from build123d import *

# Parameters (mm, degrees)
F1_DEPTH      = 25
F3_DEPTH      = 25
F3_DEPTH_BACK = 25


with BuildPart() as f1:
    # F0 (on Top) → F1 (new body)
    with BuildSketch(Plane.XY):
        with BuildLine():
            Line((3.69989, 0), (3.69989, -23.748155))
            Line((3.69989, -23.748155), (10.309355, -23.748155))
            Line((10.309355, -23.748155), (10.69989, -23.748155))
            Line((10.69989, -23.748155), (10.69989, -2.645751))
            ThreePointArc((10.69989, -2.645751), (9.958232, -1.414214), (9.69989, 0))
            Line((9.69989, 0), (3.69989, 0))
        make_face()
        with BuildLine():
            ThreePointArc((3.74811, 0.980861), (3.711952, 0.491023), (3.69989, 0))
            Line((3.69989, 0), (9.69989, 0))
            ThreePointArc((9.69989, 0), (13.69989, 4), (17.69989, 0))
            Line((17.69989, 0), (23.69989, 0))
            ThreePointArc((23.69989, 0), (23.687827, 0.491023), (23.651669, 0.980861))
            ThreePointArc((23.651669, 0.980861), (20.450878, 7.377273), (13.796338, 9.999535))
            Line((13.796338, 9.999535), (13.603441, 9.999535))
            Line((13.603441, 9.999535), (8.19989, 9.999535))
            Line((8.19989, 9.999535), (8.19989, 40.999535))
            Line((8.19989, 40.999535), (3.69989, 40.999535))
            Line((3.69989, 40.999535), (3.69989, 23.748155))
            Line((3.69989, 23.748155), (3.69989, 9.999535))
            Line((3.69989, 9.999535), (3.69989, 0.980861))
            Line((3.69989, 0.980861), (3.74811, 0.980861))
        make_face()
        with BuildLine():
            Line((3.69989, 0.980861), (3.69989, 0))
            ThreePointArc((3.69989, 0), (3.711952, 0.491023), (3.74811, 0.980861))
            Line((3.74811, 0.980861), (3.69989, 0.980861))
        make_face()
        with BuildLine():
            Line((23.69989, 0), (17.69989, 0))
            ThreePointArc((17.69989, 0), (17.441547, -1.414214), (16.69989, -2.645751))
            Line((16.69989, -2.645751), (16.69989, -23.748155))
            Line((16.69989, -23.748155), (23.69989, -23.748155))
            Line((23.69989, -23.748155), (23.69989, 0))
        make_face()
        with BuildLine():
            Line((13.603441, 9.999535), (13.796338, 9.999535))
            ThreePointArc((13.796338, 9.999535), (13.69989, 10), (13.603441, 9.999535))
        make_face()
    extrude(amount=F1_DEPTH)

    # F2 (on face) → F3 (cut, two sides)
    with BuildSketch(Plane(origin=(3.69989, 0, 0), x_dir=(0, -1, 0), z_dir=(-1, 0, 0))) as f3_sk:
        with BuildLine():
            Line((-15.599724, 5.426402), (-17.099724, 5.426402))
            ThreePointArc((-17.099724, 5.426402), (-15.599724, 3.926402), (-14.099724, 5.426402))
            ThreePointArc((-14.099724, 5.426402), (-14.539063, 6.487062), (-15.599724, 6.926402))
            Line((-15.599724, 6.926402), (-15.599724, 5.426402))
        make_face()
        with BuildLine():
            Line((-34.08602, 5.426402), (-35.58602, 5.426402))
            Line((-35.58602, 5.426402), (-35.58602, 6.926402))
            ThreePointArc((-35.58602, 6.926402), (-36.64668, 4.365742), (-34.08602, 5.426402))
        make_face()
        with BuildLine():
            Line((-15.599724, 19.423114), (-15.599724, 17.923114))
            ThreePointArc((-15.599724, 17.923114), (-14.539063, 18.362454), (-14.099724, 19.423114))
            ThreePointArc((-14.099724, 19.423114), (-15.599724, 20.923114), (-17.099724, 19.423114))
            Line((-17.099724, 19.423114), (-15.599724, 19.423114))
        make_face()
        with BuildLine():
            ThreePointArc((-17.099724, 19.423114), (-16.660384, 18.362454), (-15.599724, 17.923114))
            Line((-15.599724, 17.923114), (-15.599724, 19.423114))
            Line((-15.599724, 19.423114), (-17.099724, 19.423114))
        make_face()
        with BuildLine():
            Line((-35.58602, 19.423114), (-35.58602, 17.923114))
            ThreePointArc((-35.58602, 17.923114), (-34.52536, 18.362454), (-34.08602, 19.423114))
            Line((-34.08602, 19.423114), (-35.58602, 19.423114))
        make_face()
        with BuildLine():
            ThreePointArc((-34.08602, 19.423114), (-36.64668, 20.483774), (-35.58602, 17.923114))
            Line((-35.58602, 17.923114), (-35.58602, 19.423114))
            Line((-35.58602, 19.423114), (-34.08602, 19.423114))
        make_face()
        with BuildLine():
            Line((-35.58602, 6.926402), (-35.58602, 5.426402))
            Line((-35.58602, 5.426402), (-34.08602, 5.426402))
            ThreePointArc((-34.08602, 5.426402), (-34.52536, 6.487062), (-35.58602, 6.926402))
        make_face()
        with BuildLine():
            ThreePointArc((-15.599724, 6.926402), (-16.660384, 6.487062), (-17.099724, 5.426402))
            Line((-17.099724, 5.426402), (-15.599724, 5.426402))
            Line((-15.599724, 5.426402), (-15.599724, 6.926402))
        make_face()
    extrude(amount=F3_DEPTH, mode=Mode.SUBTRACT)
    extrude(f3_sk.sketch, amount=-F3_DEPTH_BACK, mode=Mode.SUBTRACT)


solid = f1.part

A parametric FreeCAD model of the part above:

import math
import FreeCAD as App
import Part
import Sketcher
Q = App.Units.Quantity

doc = App.newDocument("Part")
params = doc.addObject("Spreadsheet::Sheet", "Params")
for row, (alias, value) in enumerate([
    ("sketch1_radius", "4 mm"),
    ("sketch1_radius2", "10 mm"),
    ("sketch1_width", "7 mm"),
    ("sketch1_width2", "7 mm"),
    ("sketch1_height", "31 mm"),
    ("pad1_length", "25 mm"),
    ("sketch2_radius", "1.5 mm"),
], start=1):
    params.set(f"A{row}", alias)
    params.set(f"B{row}", "=" + value)
    params.setAlias(f"B{row}", alias)

body = doc.addObject("PartDesign::Body", "Body")

# Sketch on XY plane
sketch1 = body.newObject("Sketcher::SketchObject", "Sketch")
sketch1.AttachmentSupport = (doc.getObject("XY_Plane"), [""])
sketch1.MapMode = "FlatFace"
sketch1.addGeometry([
    Part.LineSegment(App.Vector(3.69989, -23.748155, 0), App.Vector(10.69989, -23.748155, 0)),  # 0
    Part.LineSegment(App.Vector(10.69989, -23.748155, 0), App.Vector(10.69989, -2.645751, 0)),  # 1
    Part.ArcOfCircle(Part.Circle(App.Vector(13.699878, -0.000004, 0), App.Vector(0, 0, 1), 3.999988), math.radians(179.999939), math.radians(221.409688)),  # 2
    Part.ArcOfCircle(Part.Circle(App.Vector(13.69989, 0, 0), App.Vector(0, 0, 1), 4), math.radians(0), math.radians(180)),  # 3
    Part.ArcOfCircle(Part.Circle(App.Vector(13.699889, 0.000001, 0), App.Vector(0, 0, 1), 4.000001), math.radians(-41.409615), math.radians(-0.000012)),  # 4
    Part.LineSegment(App.Vector(16.69989, -2.645751, 0), App.Vector(16.69989, -23.748155, 0)),  # 5
    Part.LineSegment(App.Vector(16.69989, -23.748155, 0), App.Vector(23.69989, -23.748155, 0)),  # 6
    Part.LineSegment(App.Vector(23.69989, -23.748155, 0), App.Vector(23.69989, 0, 0)),  # 7
    Part.ArcOfCircle(Part.Circle(App.Vector(13.699572, -0.000019, 0), App.Vector(0, 0, 1), 10.000318), math.radians(0.000108), math.radians(5.6289)),  # 8
    Part.ArcOfCircle(Part.Circle(App.Vector(13.699889, 0, 0), App.Vector(0, 0, 1), 10), math.radians(5.628971), math.radians(89.447382)),  # 9
    Part.ArcOfCircle(Part.Circle(App.Vector(13.699889, -0.00272, 0), App.Vector(0, 0, 1), 10.00272), math.radians(89.447532), math.radians(90.552468)),  # 10
    Part.LineSegment(App.Vector(13.603441, 9.999535, 0), App.Vector(8.19989, 9.999535, 0)),  # 11
    Part.LineSegment(App.Vector(8.19989, 9.999535, 0), App.Vector(8.19989, 40.999535, 0)),  # 12
    Part.LineSegment(App.Vector(8.19989, 40.999535, 0), App.Vector(3.69989, 40.999535, 0)),  # 13
    Part.LineSegment(App.Vector(3.69989, 40.999535, 0), App.Vector(3.69989, -23.748155, 0)),  # 14
], False)
sketch1.addConstraint([
    Sketcher.Constraint("Coincident", 0, 2, 1, 1),
    Sketcher.Constraint("Coincident", 1, 2, 2, 2),
    Sketcher.Constraint("Coincident", 2, 1, 3, 2),
    Sketcher.Constraint("Coincident", 3, 1, 4, 2),
    Sketcher.Constraint("Coincident", 4, 1, 5, 1),
    Sketcher.Constraint("Coincident", 5, 2, 6, 1),
    Sketcher.Constraint("Coincident", 6, 2, 7, 1),
    Sketcher.Constraint("Coincident", 7, 2, 8, 1),
    Sketcher.Constraint("Coincident", 8, 2, 9, 1),
    Sketcher.Constraint("Coincident", 9, 2, 10, 1),
    Sketcher.Constraint("Coincident", 10, 2, 11, 1),
    Sketcher.Constraint("Coincident", 11, 2, 12, 1),
    Sketcher.Constraint("Coincident", 12, 2, 13, 1),
    Sketcher.Constraint("Coincident", 13, 2, 14, 1),
    Sketcher.Constraint("Coincident", 14, 2, 0, 1),
    Sketcher.Constraint("Horizontal", 0),
    Sketcher.Constraint("Vertical", 1),
    Sketcher.Constraint("Vertical", 5),
    Sketcher.Constraint("Horizontal", 6),
    Sketcher.Constraint("Vertical", 7),
    Sketcher.Constraint("Horizontal", 11),
    Sketcher.Constraint("Vertical", 12),
    Sketcher.Constraint("Horizontal", 13),
    Sketcher.Constraint("Vertical", 14),
    Sketcher.Constraint("Coincident", 4, 3, 3, 3),
    Sketcher.Constraint("Coincident", 9, 3, 3, 3),
    Sketcher.Constraint("PointOnObject", 3, 3, -1),
    Sketcher.Constraint("PointOnObject", 2, 1, -1),
    Sketcher.Constraint("PointOnObject", 3, 1, -1),
    Sketcher.Constraint("PointOnObject", 7, 2, -1),
    Sketcher.Constraint("Radius", 3, Q("4 mm")),
    Sketcher.Constraint("Radius", 9, Q("10 mm")),
    Sketcher.Constraint("DistanceX", 0, 1, 0, 2, Q("7 mm")),
    Sketcher.Constraint("DistanceX", 6, 1, 6, 2, Q("7 mm")),
    Sketcher.Constraint("DistanceY", 12, 1, 12, 2, Q("31 mm")),
    Sketcher.Constraint("DistanceX", 13, 2, 13, 1, Q("4.5 mm")),
    Sketcher.Constraint("DistanceX", 0, 2, 10, 3, Q("2.999999 mm")),
    Sketcher.Constraint("DistanceX", 0, 2, 9, 3, Q("2.999999 mm")),
    Sketcher.Constraint("DistanceX", 4, 1, 3, 1, Q("1 mm")),
    Sketcher.Constraint("DistanceY", 9, 2, 12, 2, Q("31 mm")),
    Sketcher.Constraint("Radius", 10, Q("10.00272 mm")),
    Sketcher.Constraint("Radius", 2, Q("3.999988 mm")),
    Sketcher.Constraint("Radius", 8, Q("10.000318 mm")),
    Sketcher.Constraint("DistanceX", 11, 2, 11, 1, Q("5.403551 mm")),
    Sketcher.Constraint("DistanceY", 14, 2, 14, 1, Q("64.74769 mm")),
    Sketcher.Constraint("DistanceY", 1, 1, 1, 2, Q("21.102404 mm")),
    Sketcher.Constraint("DistanceY", 5, 2, 5, 1, Q("21.102404 mm")),
    Sketcher.Constraint("DistanceX", -1, 1, 3, 3, Q("13.69989 mm")),
    Sketcher.Constraint("DistanceX", -1, 1, 8, 2, Q("23.651669 mm")),
])
sketch1.setExpression("Constraints[30]", "Params.sketch1_radius")
sketch1.setExpression("Constraints[31]", "Params.sketch1_radius2")
sketch1.setExpression("Constraints[32]", "Params.sketch1_width")
sketch1.setExpression("Constraints[33]", "Params.sketch1_width2")
sketch1.setExpression("Constraints[34]", "Params.sketch1_height")
pad1 = body.newObject("PartDesign::Pad", "Pad")
pad1.Profile = sketch1
pad1.setExpression("Length", "Params.pad1_length")

# Sketch on YZ plane
sketch2 = body.newObject("Sketcher::SketchObject", "Sketch001")
sketch2.AttachmentSupport = (doc.getObject("YZ_Plane"), [""])
sketch2.MapMode = "FlatFace"
sketch2.AttachmentOffset = App.Placement(App.Vector(0, 0, 3.69989), App.Rotation())
sketch2.addGeometry([
    Part.ArcOfCircle(Part.Circle(App.Vector(15.6, 5.4, 0), App.Vector(0, 0, 1), 1.5), math.radians(180), math.radians(360)),  # 0
    Part.ArcOfCircle(Part.Circle(App.Vector(15.6, 5.4, 0), App.Vector(0, 0, 1), 1.5), math.radians(90), math.radians(180)),  # 1
    Part.ArcOfCircle(Part.Circle(App.Vector(15.6, 5.4, 0), App.Vector(0, 0, 1), 1.5), math.radians(0), math.radians(90)),  # 2
    Part.ArcOfCircle(Part.Circle(App.Vector(35.6, 5.4, 0), App.Vector(0, 0, 1), 1.5), math.radians(-180), math.radians(90)),  # 3
    Part.ArcOfCircle(Part.Circle(App.Vector(35.6, 5.4, 0), App.Vector(0, 0, 1), 1.5), math.radians(90), math.radians(180)),  # 4
    Part.ArcOfCircle(Part.Circle(App.Vector(15.6, 19.4, 0), App.Vector(0, 0, 1), 1.5), math.radians(180), math.radians(270)),  # 5
    Part.ArcOfCircle(Part.Circle(App.Vector(15.6, 19.4, 0), App.Vector(0, 0, 1), 1.5), math.radians(0), math.radians(180)),  # 6
    Part.ArcOfCircle(Part.Circle(App.Vector(15.6, 19.4, 0), App.Vector(0, 0, 1), 1.5), math.radians(-90), math.radians(0)),  # 7
    Part.ArcOfCircle(Part.Circle(App.Vector(35.6, 19.4, 0), App.Vector(0, 0, 1), 1.5), math.radians(-180), math.radians(-90)),  # 8
    Part.ArcOfCircle(Part.Circle(App.Vector(35.6, 19.4, 0), App.Vector(0, 0, 1), 1.5), math.radians(-90), math.radians(180)),  # 9
], False)
sketch2.addConstraint([
    Sketcher.Constraint("Tangent", 0, 1, 1, 2),
    Sketcher.Constraint("Tangent", 1, 1, 2, 2),
    Sketcher.Constraint("Tangent", 2, 1, 0, 2),
    Sketcher.Constraint("Tangent", 3, 1, 4, 2),
    Sketcher.Constraint("Coincident", 4, 1, 3, 2),
    Sketcher.Constraint("Tangent", 5, 1, 6, 2),
    Sketcher.Constraint("Tangent", 6, 1, 7, 2),
    Sketcher.Constraint("Tangent", 7, 1, 5, 2),
    Sketcher.Constraint("Tangent", 8, 1, 9, 2),
    Sketcher.Constraint("Coincident", 9, 1, 8, 2),
    Sketcher.Constraint("Equal", 2, 3),
    Sketcher.Constraint("Equal", 4, 5),
    Sketcher.Constraint("Equal", 7, 8),
    Sketcher.Constraint("Horizontal", 2, 3, 3, 3),
    Sketcher.Constraint("Horizontal", 7, 3, 8, 3),
    Sketcher.Constraint("Horizontal", 4, 3, 0, 1),
    Sketcher.Constraint("Horizontal", 0, 1, 2, 1),
    Sketcher.Constraint("Horizontal", 2, 1, 3, 1),
    Sketcher.Constraint("Horizontal", 9, 3, 5, 1),
    Sketcher.Constraint("Horizontal", 5, 1, 6, 1),
    Sketcher.Constraint("Horizontal", 6, 1, 8, 1),
    Sketcher.Constraint("Vertical", 2, 3, 5, 3),
    Sketcher.Constraint("Vertical", 4, 3, 8, 3),
    Sketcher.Constraint("Vertical", 7, 3, 1, 1),
    Sketcher.Constraint("Vertical", 9, 3, 4, 1),
    Sketcher.Constraint("Vertical", 1, 1, 7, 1),
    Sketcher.Constraint("Vertical", 4, 1, 9, 1),
    Sketcher.Constraint("Radius", 0, Q("1.5 mm")),
    Sketcher.Constraint("DistanceY", -1, 1, 2, 3, Q("5.426401 mm")),
    Sketcher.Constraint("DistanceX", -1, 1, 3, 3, Q("35.58602 mm")),
    Sketcher.Constraint("DistanceY", 1, 3, 5, 3, Q("13.99671 mm")),
    Sketcher.Constraint("DistanceX", -1, 1, 0, 3, Q("15.599724 mm")),
])
sketch2.setExpression("Constraints[27]", "Params.sketch2_radius")
pocket1 = body.newObject("PartDesign::Pocket", "Pocket")
pocket1.Profile = sketch2
pocket1.Type = "ThroughAll"
pocket1.Midplane = True

doc.recompute()
